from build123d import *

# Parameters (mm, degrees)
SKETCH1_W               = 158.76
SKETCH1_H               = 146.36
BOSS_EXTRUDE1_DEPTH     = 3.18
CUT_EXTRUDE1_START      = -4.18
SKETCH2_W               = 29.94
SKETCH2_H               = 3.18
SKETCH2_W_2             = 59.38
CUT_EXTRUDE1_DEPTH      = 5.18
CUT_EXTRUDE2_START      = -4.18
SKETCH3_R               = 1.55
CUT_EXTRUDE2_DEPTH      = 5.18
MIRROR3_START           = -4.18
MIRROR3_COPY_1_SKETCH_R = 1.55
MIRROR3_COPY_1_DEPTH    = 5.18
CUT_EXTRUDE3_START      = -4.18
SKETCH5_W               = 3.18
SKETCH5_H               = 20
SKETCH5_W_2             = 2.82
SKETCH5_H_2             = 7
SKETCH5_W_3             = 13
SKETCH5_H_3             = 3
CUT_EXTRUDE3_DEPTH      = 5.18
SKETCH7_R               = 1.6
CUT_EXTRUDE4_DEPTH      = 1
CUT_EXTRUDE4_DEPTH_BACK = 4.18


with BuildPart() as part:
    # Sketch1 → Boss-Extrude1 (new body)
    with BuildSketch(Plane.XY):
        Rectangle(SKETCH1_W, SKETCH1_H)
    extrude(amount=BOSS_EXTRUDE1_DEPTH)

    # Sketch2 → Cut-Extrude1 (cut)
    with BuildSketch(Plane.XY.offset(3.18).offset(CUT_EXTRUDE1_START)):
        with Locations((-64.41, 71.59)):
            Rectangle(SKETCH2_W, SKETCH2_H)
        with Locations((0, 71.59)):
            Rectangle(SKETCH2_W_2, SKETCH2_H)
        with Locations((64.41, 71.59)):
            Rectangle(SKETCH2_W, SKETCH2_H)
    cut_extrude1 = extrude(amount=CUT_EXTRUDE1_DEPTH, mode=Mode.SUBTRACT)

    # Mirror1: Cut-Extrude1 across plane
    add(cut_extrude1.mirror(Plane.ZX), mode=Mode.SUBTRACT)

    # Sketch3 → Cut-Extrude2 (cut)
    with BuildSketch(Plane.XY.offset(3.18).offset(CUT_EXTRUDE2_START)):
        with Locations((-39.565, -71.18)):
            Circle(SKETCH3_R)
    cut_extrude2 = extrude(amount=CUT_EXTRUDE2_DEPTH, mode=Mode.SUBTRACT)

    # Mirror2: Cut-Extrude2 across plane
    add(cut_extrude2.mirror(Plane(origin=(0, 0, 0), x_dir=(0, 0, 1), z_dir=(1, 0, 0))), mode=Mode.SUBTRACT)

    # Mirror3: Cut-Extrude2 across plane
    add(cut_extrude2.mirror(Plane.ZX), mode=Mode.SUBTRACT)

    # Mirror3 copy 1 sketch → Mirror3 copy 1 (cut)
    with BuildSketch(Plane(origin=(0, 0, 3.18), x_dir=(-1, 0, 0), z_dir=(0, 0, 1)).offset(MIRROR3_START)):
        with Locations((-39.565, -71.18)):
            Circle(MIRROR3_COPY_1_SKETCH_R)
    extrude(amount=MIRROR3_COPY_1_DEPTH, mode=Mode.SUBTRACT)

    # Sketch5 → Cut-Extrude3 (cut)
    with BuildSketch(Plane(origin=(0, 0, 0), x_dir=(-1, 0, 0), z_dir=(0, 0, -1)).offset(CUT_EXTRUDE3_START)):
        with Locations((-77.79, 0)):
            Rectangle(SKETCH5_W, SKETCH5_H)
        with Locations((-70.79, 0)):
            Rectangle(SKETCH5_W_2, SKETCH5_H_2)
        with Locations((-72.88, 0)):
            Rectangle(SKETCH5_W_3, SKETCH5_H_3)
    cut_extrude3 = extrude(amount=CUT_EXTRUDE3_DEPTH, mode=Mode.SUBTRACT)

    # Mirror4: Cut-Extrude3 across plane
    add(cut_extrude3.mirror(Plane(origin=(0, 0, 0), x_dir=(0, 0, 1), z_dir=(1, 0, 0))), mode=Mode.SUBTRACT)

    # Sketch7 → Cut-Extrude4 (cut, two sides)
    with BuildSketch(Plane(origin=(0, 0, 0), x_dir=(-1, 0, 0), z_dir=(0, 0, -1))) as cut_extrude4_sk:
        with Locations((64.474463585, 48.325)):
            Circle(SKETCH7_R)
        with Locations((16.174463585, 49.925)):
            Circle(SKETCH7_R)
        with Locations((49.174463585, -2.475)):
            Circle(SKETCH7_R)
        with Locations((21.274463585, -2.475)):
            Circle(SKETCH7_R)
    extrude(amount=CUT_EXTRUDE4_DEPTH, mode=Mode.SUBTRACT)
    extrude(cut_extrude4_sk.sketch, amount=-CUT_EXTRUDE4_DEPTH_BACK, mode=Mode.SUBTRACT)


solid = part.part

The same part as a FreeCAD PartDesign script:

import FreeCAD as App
import Part
import Sketcher

V = App.Vector


def add_polygon(sketch, points):
    """Adds a closed chain of lines whose ends are joined by coincident constraints."""
    first, n = sketch.GeometryCount, len(points)
    for a, b in zip(points, points[1:] + points[:1]):
        sketch.addGeometry(Part.LineSegment(App.Vector(*a, 0), App.Vector(*b, 0)), False)
    for i in range(n):
        sketch.addConstraint(Sketcher.Constraint("Coincident", first + i, 2, first + (i + 1) % n, 1))

doc = App.newDocument("Part")
body = doc.addObject("PartDesign::Body", "Body")

# Sketch on XY plane
sketch1 = body.newObject("Sketcher::SketchObject", "Sketch")
sketch1.AttachmentSupport = (doc.getObject("XY_Plane"), [""])
sketch1.MapMode = "FlatFace"
add_polygon(sketch1, [(-79, 73), (-79, -73), (79, -73), (79, 73)])  # lines 0-3
sketch1.addConstraint(Sketcher.Constraint("Vertical", 0))
sketch1.addConstraint(Sketcher.Constraint("Horizontal", 1))
sketch1.addConstraint(Sketcher.Constraint("Vertical", 2))
sketch1.addConstraint(Sketcher.Constraint("Horizontal", 3))
sketch1.addConstraint(Sketcher.Constraint("Symmetric", 0, 2, 2, 2, -1, 1))
sketch1.addConstraint(Sketcher.Constraint("DistanceX", 1, 1, 1, 2, 158.76))
sketch1.addConstraint(Sketcher.Constraint("DistanceY", 0, 2, 0, 1, 146.36))
pad1 = body.newObject("PartDesign::Pad", "Pad")
pad1.Profile = sketch1
pad1.Length = 3.18

# Sketch on XY plane
sketch2 = body.newObject("Sketcher::SketchObject", "Sketch001")
sketch2.AttachmentSupport = (doc.getObject("XY_Plane"), [""])
sketch2.MapMode = "FlatFace"
sketch2.AttachmentOffset = App.Placement(V(0, 0, -1), App.Rotation())
add_polygon(sketch2, [(-79.4, 73.2), (-79.4, 70), (-49.4, 70), (-49.4, 73.2)])  # lines 0-3
add_polygon(sketch2, [(-29.7, 73.2), (-29.7, 70), (29.7, 70), (29.7, 73.2)])  # lines 4-7
add_polygon(sketch2, [(49.4, 73.2), (49.4, 70), (79.4, 70), (79.4, 73.2)])  # lines 8-11
sketch2.addConstraint(Sketcher.Constraint("Vertical", 0))
sketch2.addConstraint(Sketcher.Constraint("Horizontal", 1))
sketch2.addConstraint(Sketcher.Constraint("Vertical", 2))
sketch2.addConstraint(Sketcher.Constraint("Horizontal", 3))
sketch2.addConstraint(Sketcher.Constraint("Vertical", 4))
sketch2.addConstraint(Sketcher.Constraint("Horizontal", 5))
sketch2.addConstraint(Sketcher.Constraint("Vertical", 6))
sketch2.addConstraint(Sketcher.Constraint("Horizontal", 7))
sketch2.addConstraint(Sketcher.Constraint("Vertical", 8))
sketch2.addConstraint(Sketcher.Constraint("Horizontal", 9))
sketch2.addConstraint(Sketcher.Constraint("Vertical", 10))
sketch2.addConstraint(Sketcher.Constraint("Horizontal", 11))
sketch2.addConstraint(Sketcher.Constraint("Symmetric", 1, 2, 8, 2, -2))
sketch2.addConstraint(Sketcher.Constraint("Symmetric", 3, 2, 10, 2, -2))
sketch2.addConstraint(Sketcher.Constraint("Horizontal", 1, 2, 4, 2))
sketch2.addConstraint(Sketcher.Constraint("Horizontal", 3, 2, 6, 2))
sketch2.addConstraint(Sketcher.Constraint("DistanceY", -1, 1, 0, 2, 70.0))
sketch2.addConstraint(Sketcher.Constraint("DistanceX", 1, 1, 1, 2, 29.94))
sketch2.addConstraint(Sketcher.Constraint("DistanceX", 5, 1, 5, 2, 59.38))
sketch2.addConstraint(Sketcher.Constraint("DistanceY", 0, 2, 0, 1, 3.18))
sketch2.addConstraint(Sketcher.Constraint("DistanceX", 0, 2, -1, 1, 79.38))
sketch2.addConstraint(Sketcher.Constraint("DistanceX", 4, 2, -1, 1, 29.69))
pocket1 = body.newObject("PartDesign::Pocket", "Pocket")
pocket1.Profile = sketch2
pocket1.Length = 5.18
pocket1.Reversed = True
doc.recompute()

mirrored = body.newObject("PartDesign::Mirrored", "Mirrored")
mirrored.Originals = [pocket1]
mirrored.MirrorPlane = (doc.getObject("XZ_Plane"), [""])
body.Tip = mirrored

# Sketch on XY plane
sketch3 = body.newObject("Sketcher::SketchObject", "Sketch002")
sketch3.AttachmentSupport = (doc.getObject("XY_Plane"), [""])
sketch3.MapMode = "FlatFace"
sketch3.AttachmentOffset = App.Placement(V(0, 0, -1), App.Rotation())
sketch3.addGeometry(Part.Circle(V(-39.6, -71.2, 0), V(0, 0, 1), 1.6), False)
sketch3.addConstraint(Sketcher.Constraint("Diameter", 0, 3.1))
sketch3.addConstraint(Sketcher.Constraint("DistanceY", 0, 3, -1, 1, 71.18))
sketch3.addConstraint(Sketcher.Constraint("DistanceX", 0, 3, -1, 1, 39.565))
pocket2 = body.newObject("PartDesign::Pocket", "Pocket001")
pocket2.Profile = sketch3
pocket2.Length = 5.18
pocket2.Reversed = True
doc.recompute()

mirrored2 = body.newObject("PartDesign::Mirrored", "Mirrored001")
mirrored2.Originals = [pocket2]
mirrored2.MirrorPlane = (doc.getObject("YZ_Plane"), [""])
body.Tip = mirrored2
doc.recompute()

mirrored3 = body.newObject("PartDesign::Mirrored", "Mirrored002")
mirrored3.Originals = [pocket2]
mirrored3.MirrorPlane = (doc.getObject("XZ_Plane"), [""])
body.Tip = mirrored3

# Sketch on XY plane
sketch4 = body.newObject("Sketcher::SketchObject", "Sketch003")
sketch4.AttachmentSupport = (doc.getObject("XY_Plane"), [""])
sketch4.MapMode = "FlatFace"
sketch4.AttachmentOffset = App.Placement(V(0, 0, -1), App.Rotation())
sketch4.addGeometry(Part.Circle(V(39.6, 71.2, 0), V(0, 0, 1), 1.6), False)
sketch4.addConstraint(Sketcher.Constraint("Diameter", 0, 3.1))
sketch4.addConstraint(Sketcher.Constraint("DistanceY", -1, 1, 0, 3, 71.18))
sketch4.addConstraint(Sketcher.Constraint("DistanceX", -1, 1, 0, 3, 39.565))
pocket3 = body.newObject("PartDesign::Pocket", "Pocket002")
pocket3.Profile = sketch4
pocket3.Length = 5.18
pocket3.Reversed = True

# Sketch on XY plane
sketch5 = body.newObject("Sketcher::SketchObject", "Sketch004")
sketch5.AttachmentSupport = (doc.getObject("XY_Plane"), [""])
sketch5.MapMode = "FlatFace"
sketch5.AttachmentOffset = App.Placement(V(0, 0, 4.18), App.Rotation())
add_polygon(sketch5, [(79.4, -10), (76.2, -10), (76.2, -1.5), (72.2, -1.5), (72.2, -3.5), (69.4, -3.5), (69.4, -1.5), (66.4, -1.5), (66.4, 1.5), (69.4, 1.5), (69.4, 3.5), (72.2, 3.5), (72.2, 1.5), (76.2, 1.5), (76.2, 10), (79.4, 10)])  # lines 0-15
sketch5.addConstraint(Sketcher.Constraint("Horizontal", 0))
sketch5.addConstraint(Sketcher.Constraint("Vertical", 1))
sketch5.addConstraint(Sketcher.Constraint("Horizontal", 2))
sketch5.addConstraint(Sketcher.Constraint("Vertical", 3))
sketch5.addConstraint(Sketcher.Constraint("Horizontal", 4))
sketch5.addConstraint(Sketcher.Constraint("Vertical", 5))
sketch5.addConstraint(Sketcher.Constraint("Horizontal", 6))
sketch5.addConstraint(Sketcher.Constraint("Vertical", 7))
sketch5.addConstraint(Sketcher.Constraint("Horizontal", 8))
sketch5.addConstraint(Sketcher.Constraint("Vertical", 9))
sketch5.addConstraint(Sketcher.Constraint("Horizontal", 10))
sketch5.addConstraint(Sketcher.Constraint("Vertical", 11))
sketch5.addConstraint(Sketcher.Constraint("Horizontal", 12))
sketch5.addConstraint(Sketcher.Constraint("Vertical", 13))
sketch5.addConstraint(Sketcher.Constraint("Horizontal", 14))
sketch5.addConstraint(Sketcher.Constraint("Vertical", 15))
sketch5.addConstraint(Sketcher.Constraint("Symmetric", 5, 2, 8, 2, -1))
sketch5.addConstraint(Sketcher.Constraint("Symmetric", 3, 2, 10, 2, -1))
sketch5.addConstraint(Sketcher.Constraint("Symmetric", 1, 2, 12, 2, -1))
sketch5.addConstraint(Sketcher.Constraint("Horizontal", 2, 2, 5, 2))
sketch5.addConstraint(Sketcher.Constraint("Equal", 8, 7))
sketch5.addConstraint(Sketcher.Constraint("Equal", 1, 13))
sketch5.addConstraint(Sketcher.Constraint("DistanceX", 2, 2, 2, 1, 4.0))
sketch5.addConstraint(Sketcher.Constraint("DistanceX", 6, 2, 6, 1, 3.0))
sketch5.addConstraint(Sketcher.Constraint("DistanceY", 3, 2, 3, 1, 2.0))
sketch5.addConstraint(Sketcher.Constraint("DistanceY", 15, 2, 15, 1, 20.0))
sketch5.addConstraint(Sketcher.Constraint("DistanceX", 9, 2, 14, 2, 10.0))
sketch5.addConstraint(Sketcher.Constraint("DistanceX", 0, 2, 0, 1, 3.18))
sketch5.addConstraint(Sketcher.Constraint("DistanceX", -1, 1, 0, 2, 76.2))
pocket4 = body.newObject("PartDesign::Pocket", "Pocket003")
pocket4.Profile = sketch5
pocket4.Length = 5.18
doc.recompute()

mirrored4 = body.newObject("PartDesign::Mirrored", "Mirrored003")
mirrored4.Originals = [pocket4]
mirrored4.MirrorPlane = (doc.getObject("YZ_Plane"), [""])
body.Tip = mirrored4

# Sketch on XY plane
sketch6 = body.newObject("Sketcher::SketchObject", "Sketch005")
sketch6.AttachmentSupport = (doc.getObject("XY_Plane"), [""])
sketch6.MapMode = "FlatFace"
sketch6.addGeometry(Part.Circle(V(-64.5, 48.3, 0), V(0, 0, 1), 1.6), False)
sketch6.addGeometry(Part.Circle(V(-16.2, 49.9, 0), V(0, 0, 1), 1.6), False)
sketch6.addGeometry(Part.Circle(V(-49.2, -2.5, 0), V(0, 0, 1), 1.6), False)
sketch6.addGeometry(Part.Circle(V(-21.3, -2.5, 0), V(0, 0, 1), 1.6), False)
sketch6.addConstraint(Sketcher.Constraint("Equal", 0, 1))
sketch6.addConstraint(Sketcher.Constraint("Equal", 1, 2))
sketch6.addConstraint(Sketcher.Constraint("Equal", 2, 3))
sketch6.addConstraint(Sketcher.Constraint("Horizontal", 2, 3, 3, 3))
sketch6.addConstraint(Sketcher.Constraint("Diameter", 0, 3.2))
sketch6.addConstraint(Sketcher.Constraint("DistanceX", 2, 3, 1, 3, 33.0))
sketch6.addConstraint(Sketcher.Constraint("DistanceX", 0, 3, 1, 3, 48.3))
sketch6.addConstraint(Sketcher.Constraint("DistanceY", 0, 3, 1, 3, 1.6))
sketch6.addConstraint(Sketcher.Constraint("DistanceY", 2, 3, 0, 3, 50.8))
sketch6.addConstraint(Sketcher.Constraint("DistanceX", 2, 3, 3, 3, 27.9))
sketch6.addConstraint(Sketcher.Constraint("DistanceY", -1, 1, 0, 3, 48.325))
sketch6.addConstraint(Sketcher.Constraint("DistanceX", 0, 3, -1, 1, 64.474464))
pocket5 = body.newObject("PartDesign::Pocket", "Pocket004")
pocket5.Profile = sketch6
pocket5.Type = "ThroughAll"
pocket5.Midplane = True

doc.recompute()
